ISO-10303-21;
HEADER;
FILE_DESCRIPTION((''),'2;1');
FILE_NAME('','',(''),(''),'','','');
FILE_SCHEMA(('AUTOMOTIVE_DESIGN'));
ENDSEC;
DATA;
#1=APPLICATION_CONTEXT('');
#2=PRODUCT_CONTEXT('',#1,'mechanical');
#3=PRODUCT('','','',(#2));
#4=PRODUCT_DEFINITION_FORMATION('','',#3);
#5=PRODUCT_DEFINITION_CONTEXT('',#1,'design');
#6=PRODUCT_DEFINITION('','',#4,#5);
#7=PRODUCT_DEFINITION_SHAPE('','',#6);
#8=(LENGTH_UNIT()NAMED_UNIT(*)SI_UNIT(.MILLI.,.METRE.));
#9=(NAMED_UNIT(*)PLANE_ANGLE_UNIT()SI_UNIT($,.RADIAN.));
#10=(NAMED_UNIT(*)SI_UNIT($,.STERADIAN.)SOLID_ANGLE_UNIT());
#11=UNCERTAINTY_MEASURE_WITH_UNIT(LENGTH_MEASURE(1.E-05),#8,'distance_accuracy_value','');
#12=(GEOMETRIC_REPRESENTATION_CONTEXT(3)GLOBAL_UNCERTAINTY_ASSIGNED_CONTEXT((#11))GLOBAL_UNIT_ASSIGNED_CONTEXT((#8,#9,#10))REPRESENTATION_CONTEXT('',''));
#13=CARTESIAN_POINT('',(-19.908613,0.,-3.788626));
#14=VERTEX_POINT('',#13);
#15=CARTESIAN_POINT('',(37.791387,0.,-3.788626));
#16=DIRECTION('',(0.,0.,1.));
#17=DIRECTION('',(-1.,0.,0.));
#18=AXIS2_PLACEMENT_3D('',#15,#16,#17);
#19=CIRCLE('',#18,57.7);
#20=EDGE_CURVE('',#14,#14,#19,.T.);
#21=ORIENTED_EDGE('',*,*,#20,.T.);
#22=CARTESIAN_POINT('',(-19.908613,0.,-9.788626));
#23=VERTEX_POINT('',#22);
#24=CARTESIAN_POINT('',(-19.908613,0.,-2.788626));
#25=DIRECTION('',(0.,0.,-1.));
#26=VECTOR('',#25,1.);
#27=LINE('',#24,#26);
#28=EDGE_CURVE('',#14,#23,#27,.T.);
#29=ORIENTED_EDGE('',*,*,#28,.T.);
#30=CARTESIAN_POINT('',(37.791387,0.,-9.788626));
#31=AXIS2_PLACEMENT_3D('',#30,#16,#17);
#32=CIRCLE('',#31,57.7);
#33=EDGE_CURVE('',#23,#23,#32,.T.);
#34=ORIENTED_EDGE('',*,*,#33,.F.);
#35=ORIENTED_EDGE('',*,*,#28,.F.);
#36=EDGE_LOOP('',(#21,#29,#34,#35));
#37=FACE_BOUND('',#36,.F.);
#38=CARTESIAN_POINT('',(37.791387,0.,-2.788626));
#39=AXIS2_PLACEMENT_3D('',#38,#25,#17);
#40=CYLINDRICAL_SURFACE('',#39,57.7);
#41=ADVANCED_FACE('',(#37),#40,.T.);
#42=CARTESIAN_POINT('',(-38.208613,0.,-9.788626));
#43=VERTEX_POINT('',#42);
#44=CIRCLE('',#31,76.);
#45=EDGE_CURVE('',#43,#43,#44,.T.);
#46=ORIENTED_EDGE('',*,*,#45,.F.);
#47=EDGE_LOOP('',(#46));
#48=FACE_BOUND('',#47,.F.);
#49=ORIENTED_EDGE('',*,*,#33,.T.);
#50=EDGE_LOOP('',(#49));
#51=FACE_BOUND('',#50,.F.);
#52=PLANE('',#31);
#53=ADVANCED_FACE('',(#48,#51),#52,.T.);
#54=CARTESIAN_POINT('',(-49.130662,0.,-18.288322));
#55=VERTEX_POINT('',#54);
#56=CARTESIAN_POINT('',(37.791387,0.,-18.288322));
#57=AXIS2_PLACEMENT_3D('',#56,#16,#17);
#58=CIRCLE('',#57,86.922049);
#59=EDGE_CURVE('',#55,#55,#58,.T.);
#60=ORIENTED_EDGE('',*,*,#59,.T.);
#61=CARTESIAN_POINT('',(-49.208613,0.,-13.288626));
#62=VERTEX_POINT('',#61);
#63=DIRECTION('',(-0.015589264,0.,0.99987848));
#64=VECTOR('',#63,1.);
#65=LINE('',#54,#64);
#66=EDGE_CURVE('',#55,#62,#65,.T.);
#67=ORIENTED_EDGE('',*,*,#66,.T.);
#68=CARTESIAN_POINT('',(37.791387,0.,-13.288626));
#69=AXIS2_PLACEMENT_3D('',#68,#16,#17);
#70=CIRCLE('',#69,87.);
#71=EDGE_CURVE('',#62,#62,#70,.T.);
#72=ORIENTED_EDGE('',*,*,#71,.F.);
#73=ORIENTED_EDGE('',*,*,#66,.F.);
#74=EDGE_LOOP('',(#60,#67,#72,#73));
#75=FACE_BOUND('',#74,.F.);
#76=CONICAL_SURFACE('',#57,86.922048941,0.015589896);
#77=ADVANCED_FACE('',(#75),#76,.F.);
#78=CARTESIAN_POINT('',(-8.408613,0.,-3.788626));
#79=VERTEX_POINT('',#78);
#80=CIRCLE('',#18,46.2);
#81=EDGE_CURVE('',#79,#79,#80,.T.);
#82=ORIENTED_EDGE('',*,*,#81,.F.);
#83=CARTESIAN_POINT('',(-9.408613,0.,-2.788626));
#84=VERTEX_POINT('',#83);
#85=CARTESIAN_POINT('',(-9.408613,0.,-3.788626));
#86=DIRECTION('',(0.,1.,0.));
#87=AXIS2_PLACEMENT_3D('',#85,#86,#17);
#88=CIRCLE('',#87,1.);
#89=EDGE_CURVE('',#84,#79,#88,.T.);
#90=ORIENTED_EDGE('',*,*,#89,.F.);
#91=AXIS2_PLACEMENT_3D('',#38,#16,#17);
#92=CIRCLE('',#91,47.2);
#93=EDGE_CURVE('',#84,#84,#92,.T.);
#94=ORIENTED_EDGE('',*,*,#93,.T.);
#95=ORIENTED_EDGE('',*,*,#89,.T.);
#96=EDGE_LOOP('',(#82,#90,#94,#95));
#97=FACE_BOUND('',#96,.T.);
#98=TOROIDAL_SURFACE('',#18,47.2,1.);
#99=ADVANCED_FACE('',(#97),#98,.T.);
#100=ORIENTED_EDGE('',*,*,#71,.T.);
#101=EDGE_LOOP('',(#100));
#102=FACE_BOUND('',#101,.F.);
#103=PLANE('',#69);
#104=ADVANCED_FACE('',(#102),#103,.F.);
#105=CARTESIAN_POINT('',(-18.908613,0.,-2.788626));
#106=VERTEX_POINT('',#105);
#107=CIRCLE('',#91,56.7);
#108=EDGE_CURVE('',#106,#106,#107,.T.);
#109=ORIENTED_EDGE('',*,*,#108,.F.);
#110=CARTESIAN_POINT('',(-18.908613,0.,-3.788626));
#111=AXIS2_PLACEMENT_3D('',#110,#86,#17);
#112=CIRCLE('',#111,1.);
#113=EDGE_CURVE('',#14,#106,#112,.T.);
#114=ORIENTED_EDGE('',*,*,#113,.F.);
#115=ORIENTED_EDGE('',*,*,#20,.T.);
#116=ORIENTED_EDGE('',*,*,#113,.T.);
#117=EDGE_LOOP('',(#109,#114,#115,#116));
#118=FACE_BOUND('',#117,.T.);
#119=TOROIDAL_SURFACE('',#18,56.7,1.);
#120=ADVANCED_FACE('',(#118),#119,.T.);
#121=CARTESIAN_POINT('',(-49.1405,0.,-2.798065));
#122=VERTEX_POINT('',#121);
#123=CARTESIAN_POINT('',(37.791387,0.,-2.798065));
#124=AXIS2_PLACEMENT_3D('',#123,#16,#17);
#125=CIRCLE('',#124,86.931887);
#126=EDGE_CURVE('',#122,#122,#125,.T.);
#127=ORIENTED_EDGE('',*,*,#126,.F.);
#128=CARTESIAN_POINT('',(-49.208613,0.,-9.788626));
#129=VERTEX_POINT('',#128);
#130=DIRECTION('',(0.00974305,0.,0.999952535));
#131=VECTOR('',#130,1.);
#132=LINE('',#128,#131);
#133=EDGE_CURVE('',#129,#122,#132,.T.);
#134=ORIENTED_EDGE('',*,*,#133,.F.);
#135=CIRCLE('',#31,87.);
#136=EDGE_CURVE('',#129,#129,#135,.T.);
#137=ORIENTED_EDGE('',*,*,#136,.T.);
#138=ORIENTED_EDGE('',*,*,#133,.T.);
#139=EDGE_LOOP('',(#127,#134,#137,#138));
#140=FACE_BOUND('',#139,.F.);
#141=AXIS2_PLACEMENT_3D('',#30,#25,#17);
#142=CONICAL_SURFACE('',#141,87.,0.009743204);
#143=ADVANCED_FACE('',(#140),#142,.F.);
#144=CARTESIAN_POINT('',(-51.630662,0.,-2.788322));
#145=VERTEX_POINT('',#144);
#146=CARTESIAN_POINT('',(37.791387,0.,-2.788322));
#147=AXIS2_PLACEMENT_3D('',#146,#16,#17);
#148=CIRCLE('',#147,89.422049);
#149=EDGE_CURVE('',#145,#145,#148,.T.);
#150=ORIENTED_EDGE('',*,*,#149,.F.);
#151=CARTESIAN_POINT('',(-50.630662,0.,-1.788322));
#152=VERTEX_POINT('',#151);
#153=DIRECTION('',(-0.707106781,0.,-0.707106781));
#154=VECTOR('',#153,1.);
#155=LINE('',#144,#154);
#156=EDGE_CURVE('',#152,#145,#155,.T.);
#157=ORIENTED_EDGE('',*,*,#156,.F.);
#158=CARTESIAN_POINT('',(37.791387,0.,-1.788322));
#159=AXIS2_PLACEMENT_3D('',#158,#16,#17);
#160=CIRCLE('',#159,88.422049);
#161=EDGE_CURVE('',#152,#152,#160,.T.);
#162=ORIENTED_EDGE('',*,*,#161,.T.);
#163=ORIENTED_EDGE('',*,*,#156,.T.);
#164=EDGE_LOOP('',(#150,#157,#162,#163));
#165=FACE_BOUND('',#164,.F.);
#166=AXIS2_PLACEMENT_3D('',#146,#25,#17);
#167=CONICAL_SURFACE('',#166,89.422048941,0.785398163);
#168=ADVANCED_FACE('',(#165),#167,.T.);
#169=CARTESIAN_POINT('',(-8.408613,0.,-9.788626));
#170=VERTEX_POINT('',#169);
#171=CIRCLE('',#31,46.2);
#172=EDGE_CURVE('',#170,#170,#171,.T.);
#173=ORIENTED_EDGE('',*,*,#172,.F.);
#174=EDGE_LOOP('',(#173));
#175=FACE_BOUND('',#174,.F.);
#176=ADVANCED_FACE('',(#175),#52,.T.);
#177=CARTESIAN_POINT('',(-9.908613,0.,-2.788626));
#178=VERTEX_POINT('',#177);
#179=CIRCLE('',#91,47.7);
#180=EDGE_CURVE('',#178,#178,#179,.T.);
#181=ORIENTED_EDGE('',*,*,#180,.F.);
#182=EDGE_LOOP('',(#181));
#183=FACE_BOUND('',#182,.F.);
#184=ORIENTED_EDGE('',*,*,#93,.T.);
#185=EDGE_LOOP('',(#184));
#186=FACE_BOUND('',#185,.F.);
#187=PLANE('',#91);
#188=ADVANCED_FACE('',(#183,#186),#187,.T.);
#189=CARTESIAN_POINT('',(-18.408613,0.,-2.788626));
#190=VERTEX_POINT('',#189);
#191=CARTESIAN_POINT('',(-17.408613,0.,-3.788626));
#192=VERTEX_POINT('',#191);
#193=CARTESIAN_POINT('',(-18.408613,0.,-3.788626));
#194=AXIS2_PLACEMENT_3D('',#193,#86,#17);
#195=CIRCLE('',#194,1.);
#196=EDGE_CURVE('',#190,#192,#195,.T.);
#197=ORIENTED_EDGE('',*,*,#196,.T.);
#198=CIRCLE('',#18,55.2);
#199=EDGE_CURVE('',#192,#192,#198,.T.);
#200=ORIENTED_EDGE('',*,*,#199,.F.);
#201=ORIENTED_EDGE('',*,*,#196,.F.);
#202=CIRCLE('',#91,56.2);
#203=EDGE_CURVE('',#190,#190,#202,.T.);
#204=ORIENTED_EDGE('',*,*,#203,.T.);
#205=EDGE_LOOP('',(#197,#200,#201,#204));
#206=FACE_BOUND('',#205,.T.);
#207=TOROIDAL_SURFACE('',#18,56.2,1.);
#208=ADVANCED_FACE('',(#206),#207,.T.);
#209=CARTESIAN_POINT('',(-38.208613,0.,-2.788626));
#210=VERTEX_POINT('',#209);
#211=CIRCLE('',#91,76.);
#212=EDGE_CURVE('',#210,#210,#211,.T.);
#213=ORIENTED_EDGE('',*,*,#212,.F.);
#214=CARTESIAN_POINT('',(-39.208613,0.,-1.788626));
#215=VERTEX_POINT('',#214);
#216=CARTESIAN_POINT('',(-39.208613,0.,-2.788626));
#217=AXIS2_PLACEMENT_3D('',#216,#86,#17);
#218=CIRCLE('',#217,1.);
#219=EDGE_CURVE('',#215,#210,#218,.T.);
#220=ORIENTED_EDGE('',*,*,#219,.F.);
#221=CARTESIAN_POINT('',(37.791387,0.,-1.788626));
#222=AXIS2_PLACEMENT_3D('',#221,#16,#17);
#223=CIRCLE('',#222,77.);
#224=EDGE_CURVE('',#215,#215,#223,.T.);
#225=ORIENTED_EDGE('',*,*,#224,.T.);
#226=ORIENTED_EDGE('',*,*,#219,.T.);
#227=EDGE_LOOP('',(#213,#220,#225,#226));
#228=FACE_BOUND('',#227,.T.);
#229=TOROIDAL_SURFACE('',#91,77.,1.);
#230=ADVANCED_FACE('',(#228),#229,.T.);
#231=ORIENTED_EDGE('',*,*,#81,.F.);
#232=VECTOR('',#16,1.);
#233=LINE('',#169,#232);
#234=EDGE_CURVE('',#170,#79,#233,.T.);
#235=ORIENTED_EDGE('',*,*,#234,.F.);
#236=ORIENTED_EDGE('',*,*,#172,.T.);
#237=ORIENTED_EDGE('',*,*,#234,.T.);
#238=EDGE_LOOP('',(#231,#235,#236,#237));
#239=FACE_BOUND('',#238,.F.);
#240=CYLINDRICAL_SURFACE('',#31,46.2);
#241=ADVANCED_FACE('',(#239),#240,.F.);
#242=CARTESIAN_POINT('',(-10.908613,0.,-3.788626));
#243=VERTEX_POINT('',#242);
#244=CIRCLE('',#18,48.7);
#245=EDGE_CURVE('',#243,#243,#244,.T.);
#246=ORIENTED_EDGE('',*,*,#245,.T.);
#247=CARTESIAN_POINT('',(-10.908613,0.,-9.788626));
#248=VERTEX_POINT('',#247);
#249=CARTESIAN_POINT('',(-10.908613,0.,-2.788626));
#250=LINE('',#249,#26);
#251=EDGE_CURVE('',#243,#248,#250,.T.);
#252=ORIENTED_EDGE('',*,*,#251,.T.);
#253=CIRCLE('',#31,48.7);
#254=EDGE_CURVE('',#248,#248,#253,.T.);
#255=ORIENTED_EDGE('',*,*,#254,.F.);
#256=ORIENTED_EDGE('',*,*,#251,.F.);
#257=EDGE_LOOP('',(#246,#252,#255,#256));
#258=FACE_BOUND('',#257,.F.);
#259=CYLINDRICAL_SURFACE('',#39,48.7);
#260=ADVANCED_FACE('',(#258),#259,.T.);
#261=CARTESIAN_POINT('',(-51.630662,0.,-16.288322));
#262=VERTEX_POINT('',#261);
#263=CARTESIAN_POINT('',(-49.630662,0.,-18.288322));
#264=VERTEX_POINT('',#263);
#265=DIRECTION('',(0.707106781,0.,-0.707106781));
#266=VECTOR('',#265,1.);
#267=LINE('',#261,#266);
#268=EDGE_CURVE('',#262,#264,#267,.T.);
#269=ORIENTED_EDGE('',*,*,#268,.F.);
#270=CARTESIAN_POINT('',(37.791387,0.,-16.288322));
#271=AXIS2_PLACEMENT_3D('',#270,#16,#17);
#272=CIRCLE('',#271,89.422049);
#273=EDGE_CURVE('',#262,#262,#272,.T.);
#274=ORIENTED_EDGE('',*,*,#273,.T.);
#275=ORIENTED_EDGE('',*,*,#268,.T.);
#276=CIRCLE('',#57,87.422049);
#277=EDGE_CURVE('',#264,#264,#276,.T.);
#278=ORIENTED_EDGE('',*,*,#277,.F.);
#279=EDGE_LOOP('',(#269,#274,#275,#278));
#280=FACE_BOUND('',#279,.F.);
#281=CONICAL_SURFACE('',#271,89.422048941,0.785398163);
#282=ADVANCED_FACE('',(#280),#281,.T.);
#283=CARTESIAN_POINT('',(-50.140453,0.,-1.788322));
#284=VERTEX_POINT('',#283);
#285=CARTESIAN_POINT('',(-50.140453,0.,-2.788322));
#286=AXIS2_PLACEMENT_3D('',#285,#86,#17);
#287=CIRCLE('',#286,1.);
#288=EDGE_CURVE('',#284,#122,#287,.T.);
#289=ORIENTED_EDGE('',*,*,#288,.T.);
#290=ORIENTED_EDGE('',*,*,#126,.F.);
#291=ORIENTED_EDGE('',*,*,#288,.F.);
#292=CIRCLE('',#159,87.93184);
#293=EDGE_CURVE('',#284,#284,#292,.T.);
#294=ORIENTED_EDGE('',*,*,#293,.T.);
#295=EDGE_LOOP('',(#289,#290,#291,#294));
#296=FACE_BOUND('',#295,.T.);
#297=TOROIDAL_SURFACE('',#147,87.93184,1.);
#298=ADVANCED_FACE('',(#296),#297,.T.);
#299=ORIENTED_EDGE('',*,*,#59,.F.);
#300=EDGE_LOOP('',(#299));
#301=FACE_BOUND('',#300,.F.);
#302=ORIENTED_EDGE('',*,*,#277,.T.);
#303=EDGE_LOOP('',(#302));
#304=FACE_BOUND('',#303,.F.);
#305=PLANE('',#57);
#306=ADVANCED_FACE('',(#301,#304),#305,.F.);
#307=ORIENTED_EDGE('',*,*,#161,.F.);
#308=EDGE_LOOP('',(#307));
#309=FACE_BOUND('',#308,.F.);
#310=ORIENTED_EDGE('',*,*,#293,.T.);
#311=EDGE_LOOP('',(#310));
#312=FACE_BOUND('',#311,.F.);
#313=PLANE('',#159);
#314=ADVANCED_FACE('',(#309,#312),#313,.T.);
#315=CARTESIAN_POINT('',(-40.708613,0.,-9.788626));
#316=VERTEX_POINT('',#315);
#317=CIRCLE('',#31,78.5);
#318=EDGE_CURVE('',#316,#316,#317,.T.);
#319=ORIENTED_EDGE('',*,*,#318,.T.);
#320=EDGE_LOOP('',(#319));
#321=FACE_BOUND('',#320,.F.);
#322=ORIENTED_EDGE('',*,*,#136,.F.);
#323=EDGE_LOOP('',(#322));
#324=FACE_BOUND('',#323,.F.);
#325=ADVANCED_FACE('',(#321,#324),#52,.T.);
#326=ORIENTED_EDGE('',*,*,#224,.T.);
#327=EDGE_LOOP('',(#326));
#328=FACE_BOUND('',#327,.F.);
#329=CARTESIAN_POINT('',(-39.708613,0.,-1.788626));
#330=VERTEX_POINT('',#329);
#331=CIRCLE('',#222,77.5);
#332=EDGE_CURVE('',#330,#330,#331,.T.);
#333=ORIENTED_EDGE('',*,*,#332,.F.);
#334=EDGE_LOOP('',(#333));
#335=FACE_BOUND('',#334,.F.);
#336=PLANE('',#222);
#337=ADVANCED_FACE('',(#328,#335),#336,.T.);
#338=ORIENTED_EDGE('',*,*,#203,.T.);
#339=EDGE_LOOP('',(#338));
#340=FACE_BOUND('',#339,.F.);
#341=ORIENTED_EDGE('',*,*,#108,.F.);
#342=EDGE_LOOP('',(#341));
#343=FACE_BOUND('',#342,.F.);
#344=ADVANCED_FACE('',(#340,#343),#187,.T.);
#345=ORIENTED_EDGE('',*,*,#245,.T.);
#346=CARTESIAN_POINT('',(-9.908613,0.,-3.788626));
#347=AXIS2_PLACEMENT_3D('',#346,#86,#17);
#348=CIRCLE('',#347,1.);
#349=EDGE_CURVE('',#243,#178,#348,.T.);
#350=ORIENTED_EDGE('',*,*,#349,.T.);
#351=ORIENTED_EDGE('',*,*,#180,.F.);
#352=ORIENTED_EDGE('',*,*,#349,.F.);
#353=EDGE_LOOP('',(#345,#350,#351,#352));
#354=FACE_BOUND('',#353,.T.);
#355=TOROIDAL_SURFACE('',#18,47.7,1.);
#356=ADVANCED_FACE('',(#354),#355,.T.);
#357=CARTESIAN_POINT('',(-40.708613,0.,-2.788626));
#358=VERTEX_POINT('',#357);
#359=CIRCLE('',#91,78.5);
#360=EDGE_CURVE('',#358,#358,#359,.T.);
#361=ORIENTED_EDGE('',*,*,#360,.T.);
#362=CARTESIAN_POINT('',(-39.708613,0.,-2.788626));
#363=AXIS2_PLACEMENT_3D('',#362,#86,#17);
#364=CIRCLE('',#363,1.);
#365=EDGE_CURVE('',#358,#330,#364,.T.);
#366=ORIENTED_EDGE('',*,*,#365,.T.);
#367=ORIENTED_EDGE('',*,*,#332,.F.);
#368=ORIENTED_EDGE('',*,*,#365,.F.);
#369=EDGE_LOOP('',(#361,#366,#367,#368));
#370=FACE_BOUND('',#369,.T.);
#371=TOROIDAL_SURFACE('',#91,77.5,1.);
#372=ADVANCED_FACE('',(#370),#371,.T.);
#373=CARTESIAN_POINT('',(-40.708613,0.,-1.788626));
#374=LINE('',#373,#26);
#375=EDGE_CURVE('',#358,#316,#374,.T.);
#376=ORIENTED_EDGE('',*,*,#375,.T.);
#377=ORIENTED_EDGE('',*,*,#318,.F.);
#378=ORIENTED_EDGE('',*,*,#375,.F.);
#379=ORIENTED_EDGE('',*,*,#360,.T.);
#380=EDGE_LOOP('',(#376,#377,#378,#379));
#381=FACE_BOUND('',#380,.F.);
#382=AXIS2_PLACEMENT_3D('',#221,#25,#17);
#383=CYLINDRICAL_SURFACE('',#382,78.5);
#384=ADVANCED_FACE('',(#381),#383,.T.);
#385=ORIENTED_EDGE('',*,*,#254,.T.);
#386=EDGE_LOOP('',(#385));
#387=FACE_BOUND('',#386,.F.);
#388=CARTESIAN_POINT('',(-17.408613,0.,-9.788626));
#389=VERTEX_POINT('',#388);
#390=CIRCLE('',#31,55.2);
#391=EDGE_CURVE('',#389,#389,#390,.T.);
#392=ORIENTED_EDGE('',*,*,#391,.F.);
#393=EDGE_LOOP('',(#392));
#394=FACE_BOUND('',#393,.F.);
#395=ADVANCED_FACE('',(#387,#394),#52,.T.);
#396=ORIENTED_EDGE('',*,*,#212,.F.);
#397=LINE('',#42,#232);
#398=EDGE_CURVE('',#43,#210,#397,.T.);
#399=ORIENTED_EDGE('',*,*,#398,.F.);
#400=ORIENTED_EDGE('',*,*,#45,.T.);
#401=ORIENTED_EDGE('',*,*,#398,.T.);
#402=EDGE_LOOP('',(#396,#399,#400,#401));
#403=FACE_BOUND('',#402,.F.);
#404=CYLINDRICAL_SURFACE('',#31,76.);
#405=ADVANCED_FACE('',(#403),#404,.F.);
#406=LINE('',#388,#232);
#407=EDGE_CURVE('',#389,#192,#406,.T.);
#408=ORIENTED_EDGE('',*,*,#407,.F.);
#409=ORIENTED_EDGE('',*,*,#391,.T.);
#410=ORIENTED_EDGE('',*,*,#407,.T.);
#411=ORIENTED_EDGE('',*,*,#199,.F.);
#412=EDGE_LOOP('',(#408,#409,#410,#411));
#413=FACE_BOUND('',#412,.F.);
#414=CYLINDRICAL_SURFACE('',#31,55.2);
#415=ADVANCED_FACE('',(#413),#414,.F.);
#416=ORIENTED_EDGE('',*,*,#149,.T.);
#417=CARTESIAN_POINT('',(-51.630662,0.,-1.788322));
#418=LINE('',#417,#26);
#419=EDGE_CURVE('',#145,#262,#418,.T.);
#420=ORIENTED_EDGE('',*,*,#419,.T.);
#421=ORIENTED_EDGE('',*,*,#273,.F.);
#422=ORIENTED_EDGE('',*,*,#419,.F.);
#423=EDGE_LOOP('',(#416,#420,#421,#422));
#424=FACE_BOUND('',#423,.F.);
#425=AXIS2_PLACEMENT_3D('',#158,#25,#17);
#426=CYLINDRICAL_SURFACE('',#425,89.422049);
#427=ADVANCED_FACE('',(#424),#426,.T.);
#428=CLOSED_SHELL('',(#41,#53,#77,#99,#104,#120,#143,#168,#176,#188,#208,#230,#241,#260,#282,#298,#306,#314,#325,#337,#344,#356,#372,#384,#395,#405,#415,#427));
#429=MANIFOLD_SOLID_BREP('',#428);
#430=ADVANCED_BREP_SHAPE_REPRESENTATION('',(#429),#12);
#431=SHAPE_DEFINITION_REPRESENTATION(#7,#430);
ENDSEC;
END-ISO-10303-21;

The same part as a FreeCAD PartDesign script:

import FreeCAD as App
import Part
import Sketcher


def edges_at(feature, points):
    """Names of the edges that pass closest to the given points."""
    edges = feature.Shape.Edges
    near = lambda p: min(range(len(edges)), key=lambda i: edges[i].distToShape(Part.Vertex(*p))[0])
    return sorted({f"Edge{near(p) + 1}" for p in points})


def add_polygon(sketch, points):
    """Adds a closed chain of lines whose ends are joined by coincident constraints."""
    first, n = sketch.GeometryCount, len(points)
    for a, b in zip(points, points[1:] + points[:1]):
        sketch.addGeometry(Part.LineSegment(App.Vector(*a, 0), App.Vector(*b, 0)), False)
    for i in range(n):
        sketch.addConstraint(Sketcher.Constraint("Coincident", first + i, 2, first + (i + 1) % n, 1))

doc = App.newDocument("Part")
body = doc.addObject("PartDesign::Body", "Body")

# Sketch on XZ plane
sketch1 = body.newObject("Sketcher::SketchObject", "Sketch")
sketch1.AttachmentSupport = (doc.getObject("XZ_Plane"), [""])
sketch1.MapMode = "FlatFace"
add_polygon(sketch1, [(-51.630662, -18.288322), (-49.130662, -18.288322), (-49.208613, -13.288626), (37.791387, -13.288626), (37.791387, -9.788626), (-8.408613, -9.788626), (-8.408613, -2.788626), (-10.908613, -2.788626), (-10.908613, -9.788626), (-17.408613, -9.788626), (-17.408613, -2.788626), (-19.908613, -2.788626), (-19.908613, -9.788626), (-38.208613, -9.788626), (-38.208613, -1.788626), (-40.708613, -1.788626), (-40.708613, -9.788626), (-49.208613, -9.788626), (-49.130662, -1.788322), (-51.630662, -1.788322)])  # lines 0-19
sketch1.addGeometry(Part.LineSegment(App.Vector(37.791387, -18.288322, 0), App.Vector(37.791387, -1.788322, 0)), True)  # axis
sketch1.addConstraint([
    Sketcher.Constraint("Horizontal", 0),
    Sketcher.Constraint("Horizontal", 2),
    Sketcher.Constraint("Vertical", 3),
    Sketcher.Constraint("Horizontal", 4),
    Sketcher.Constraint("Vertical", 5),
    Sketcher.Constraint("Horizontal", 6),
    Sketcher.Constraint("Vertical", 7),
    Sketcher.Constraint("Horizontal", 8),
    Sketcher.Constraint("Vertical", 9),
    Sketcher.Constraint("Horizontal", 10),
    Sketcher.Constraint("Vertical", 11),
    Sketcher.Constraint("Horizontal", 12),
    Sketcher.Constraint("Vertical", 13),
    Sketcher.Constraint("Horizontal", 14),
    Sketcher.Constraint("Vertical", 15),
    Sketcher.Constraint("Horizontal", 16),
    Sketcher.Constraint("Horizontal", 18),
    Sketcher.Constraint("Vertical", 19),
    Sketcher.Constraint("Vertical", 20),
    Sketcher.Constraint("Horizontal", 4, 2, 7, 2),
    Sketcher.Constraint("Horizontal", 6, 2, 9, 2),
    Sketcher.Constraint("Horizontal", 8, 2, 11, 2),
    Sketcher.Constraint("Horizontal", 12, 2, 15, 2),
    Sketcher.Constraint("Horizontal", 19, 2, 20, 1),
    Sketcher.Constraint("Horizontal", 18, 2, 20, 2),
    Sketcher.Constraint("Vertical", 1, 2, 16, 2),
    Sketcher.Constraint("Vertical", 0, 2, 17, 2),
    Sketcher.Constraint("Vertical", 3, 2, 20, 1),
    Sketcher.Constraint("Equal", 0, 6),
    Sketcher.Constraint("Equal", 6, 10),
    Sketcher.Constraint("Equal", 10, 14),
    Sketcher.Constraint("DistanceX", 2, 1, 2, 2, 87.0),
    Sketcher.Constraint("DistanceY", 5, 1, 5, 2, 7.0),
    Sketcher.Constraint("DistanceY", 13, 1, 13, 2, 8.0),
    Sketcher.Constraint("DistanceX", 0, 1, 0, 2, 2.5),
    Sketcher.Constraint("DistanceX", 4, 2, 4, 1, 46.2),
    Sketcher.Constraint("DistanceX", 8, 2, 8, 1, 6.5),
    Sketcher.Constraint("DistanceX", 12, 2, 12, 1, 18.3),
    Sketcher.Constraint("DistanceY", 3, 1, 3, 2, 3.5),
    Sketcher.Constraint("DistanceY", 19, 2, 19, 1, 16.5),
    Sketcher.Constraint("DistanceX", 0, 2, -1, 1, 49.130662),
    Sketcher.Constraint("DistanceY", 0, 2, -1, 1, 18.288322),
    Sketcher.Constraint("DistanceX", 1, 2, 0, 2, 0.077951),
    Sketcher.Constraint("Distance", 1, 5.000304),
])
revolution = body.newObject("PartDesign::Revolution", "Revolution")
revolution.Profile = sketch1
revolution.ReferenceAxis = (sketch1, ["Axis0"])
revolution.Angle = 360
doc.recompute()

chamfer = body.newObject("PartDesign::Chamfer", "Chamfer")
chamfer.Base = (revolution, edges_at(revolution, [(127.213, 0, -1.788)]))
chamfer.Size = 1
doc.recompute()

fillet = body.newObject("PartDesign::Fillet", "Fillet")
fillet.Base = (chamfer, edges_at(chamfer, [
    (124.713, 0, -1.788),
    (113.791, 0, -1.789),
    (116.291, 0, -1.789),
    (95.491, 0, -2.789),
    (86.491, 0, -2.789),
    (83.991, 0, -2.789),
    (92.991, 0, -2.789),
]))
fillet.Radius = 1
doc.recompute()

chamfer2 = body.newObject("PartDesign::Chamfer", "Chamfer001")
chamfer2.Base = (fillet, edges_at(fillet, [(127.213, 0, -18.288)]))
chamfer2.Size = 2

doc.recompute()
